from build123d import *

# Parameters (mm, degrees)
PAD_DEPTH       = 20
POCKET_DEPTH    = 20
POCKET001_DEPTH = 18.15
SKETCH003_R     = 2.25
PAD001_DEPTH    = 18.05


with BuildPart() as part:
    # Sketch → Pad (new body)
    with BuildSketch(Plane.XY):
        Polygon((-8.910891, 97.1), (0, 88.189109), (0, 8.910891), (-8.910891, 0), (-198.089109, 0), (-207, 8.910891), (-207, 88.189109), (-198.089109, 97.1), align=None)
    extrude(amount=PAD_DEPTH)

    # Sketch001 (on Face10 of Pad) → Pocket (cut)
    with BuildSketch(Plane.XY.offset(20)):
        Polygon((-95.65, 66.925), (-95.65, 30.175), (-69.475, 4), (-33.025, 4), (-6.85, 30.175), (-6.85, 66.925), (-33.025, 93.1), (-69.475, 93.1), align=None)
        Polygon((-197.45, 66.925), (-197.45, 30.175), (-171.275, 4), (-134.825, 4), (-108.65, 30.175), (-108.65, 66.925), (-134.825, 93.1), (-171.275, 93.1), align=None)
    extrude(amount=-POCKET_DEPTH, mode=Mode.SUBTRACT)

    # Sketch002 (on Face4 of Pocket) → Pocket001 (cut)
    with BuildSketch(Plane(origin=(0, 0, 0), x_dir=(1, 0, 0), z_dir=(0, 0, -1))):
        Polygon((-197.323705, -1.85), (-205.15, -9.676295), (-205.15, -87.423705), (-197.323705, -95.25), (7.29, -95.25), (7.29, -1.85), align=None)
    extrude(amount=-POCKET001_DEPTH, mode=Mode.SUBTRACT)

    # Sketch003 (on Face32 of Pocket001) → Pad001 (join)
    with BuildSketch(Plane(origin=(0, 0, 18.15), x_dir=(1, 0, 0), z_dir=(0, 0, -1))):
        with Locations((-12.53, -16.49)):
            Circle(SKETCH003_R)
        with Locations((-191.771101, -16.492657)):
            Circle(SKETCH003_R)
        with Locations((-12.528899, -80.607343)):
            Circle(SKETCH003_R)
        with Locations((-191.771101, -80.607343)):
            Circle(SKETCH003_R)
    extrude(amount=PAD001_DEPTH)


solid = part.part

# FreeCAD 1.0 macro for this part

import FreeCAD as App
import Part
import Sketcher

V = App.Vector
Q = App.Units.Quantity


def add_polygon(sketch, points):
    """Adds a closed chain of lines whose ends are joined by coincident constraints."""
    first, n = sketch.GeometryCount, len(points)
    for a, b in zip(points, points[1:] + points[:1]):
        sketch.addGeometry(Part.LineSegment(App.Vector(*a, 0), App.Vector(*b, 0)), False)
    for i in range(n):
        sketch.addConstraint(Sketcher.Constraint("Coincident", first + i, 2, first + (i + 1) % n, 1))

doc = App.newDocument("Part")
body = doc.addObject("PartDesign::Body", "Body")

# Sketch on XY plane
sketch1 = doc.addObject("Sketcher::SketchObject", "Sketch")
body.addObject(sketch1)
sketch1.AttachmentSupport = (doc.XY_Plane, [""])
sketch1.MapMode = "FlatFace"
add_polygon(sketch1, [(0, 88), (-9, 97), (-198, 97), (-207, 88), (-207, 9), (-198, 0), (-9, 0), (0, 9)])  # lines 0-7
sketch1.addConstraint([
    Sketcher.Constraint("Horizontal", 1),
    Sketcher.Constraint("Vertical", 3),
    Sketcher.Constraint("Horizontal", 5),
    Sketcher.Constraint("Vertical", 7),
    Sketcher.Constraint("PointOnObject", 4, 2, -1),
    Sketcher.Constraint("PointOnObject", 6, 2, -2),
    Sketcher.Constraint("Perpendicular", 0, 2),
    Sketcher.Constraint("Perpendicular", 2, 4),
    Sketcher.Constraint("Perpendicular", 4, 6),
    Sketcher.Constraint("Horizontal", 3, 2, 6, 2),
    Sketcher.Constraint("Horizontal", 2, 2, 7, 2),
    Sketcher.Constraint("Vertical", 1, 2, 4, 2),
    Sketcher.Constraint("Vertical", 0, 2, 5, 2),
    Sketcher.Constraint("DistanceX", 2, 2, -1, 1, Q("207 mm")),
    Sketcher.Constraint("DistanceY", -1, 1, 0, 2, Q("97.1 mm")),
    Sketcher.Constraint("DistanceX", 1, 2, 1, 1, Q("189.178218 mm")),
])
pad1 = doc.addObject("PartDesign::Pad", "Pad")
body.addObject(pad1)
pad1.Profile = sketch1
pad1.Length = 20

# Sketch on XY plane
sketch2 = doc.addObject("Sketcher::SketchObject", "Sketch001")
body.addObject(sketch2)
sketch2.AttachmentSupport = (doc.XY_Plane, [""])
sketch2.MapMode = "FlatFace"
sketch2.AttachmentOffset = App.Placement(V(0, 0, 20), App.Rotation())
add_polygon(sketch2, [(-96, 67), (-96, 30), (-69, 4), (-33, 4), (-7, 30), (-7, 67), (-33, 93), (-69, 93)])  # lines 0-7
add_polygon(sketch2, [(-197, 67), (-197, 30), (-171, 4), (-135, 4), (-109, 30), (-109, 67), (-135, 93), (-171, 93)])  # lines 8-15
sketch2.addConstraint([
    Sketcher.Constraint("Vertical", 0),
    Sketcher.Constraint("Horizontal", 2),
    Sketcher.Constraint("Vertical", 4),
    Sketcher.Constraint("Horizontal", 6),
    Sketcher.Constraint("Vertical", 8),
    Sketcher.Constraint("Horizontal", 10),
    Sketcher.Constraint("Vertical", 12),
    Sketcher.Constraint("Horizontal", 14),
    Sketcher.Constraint("Perpendicular", 1, 3),
    Sketcher.Constraint("Perpendicular", 3, 5),
    Sketcher.Constraint("Perpendicular", 5, 7),
    Sketcher.Constraint("Perpendicular", 7, 9),
    Sketcher.Constraint("Perpendicular", 9, 11),
    Sketcher.Constraint("Perpendicular", 11, 13),
    Sketcher.Constraint("Perpendicular", 13, 15),
    Sketcher.Constraint("Horizontal", 0, 2, 3, 2),
    Sketcher.Constraint("Horizontal", 4, 2, 7, 2),
    Sketcher.Constraint("Horizontal", 3, 2, 8, 2),
    Sketcher.Constraint("Horizontal", 2, 2, 9, 2),
    Sketcher.Constraint("Horizontal", 8, 2, 11, 2),
    Sketcher.Constraint("Horizontal", 7, 2, 12, 2),
    Sketcher.Constraint("Horizontal", 6, 2, 13, 2),
    Sketcher.Constraint("Horizontal", 12, 2, 15, 2),
    Sketcher.Constraint("Vertical", 2, 2, 5, 2),
    Sketcher.Constraint("Vertical", 1, 2, 6, 2),
    Sketcher.Constraint("Equal", 6, 10),
    Sketcher.Constraint("DistanceY", -1, 1, 1, 2, Q("4 mm")),
    Sketcher.Constraint("DistanceX", 11, 2, 0, 2, Q("13 mm")),
    Sketcher.Constraint("DistanceX", 2, 1, 2, 2, Q("36.45 mm")),
    Sketcher.Constraint("DistanceY", 0, 2, 0, 1, Q("36.75 mm")),
    Sketcher.Constraint("DistanceY", -1, 1, 5, 2, Q("93.1 mm")),
    Sketcher.Constraint("DistanceX", 0, 2, -1, 1, Q("95.65 mm")),
])
pocket1 = doc.addObject("PartDesign::Pocket", "Pocket")
body.addObject(pocket1)
pocket1.Profile = sketch2
pocket1.Length = 20

# Sketch on XY plane
sketch3 = doc.addObject("Sketcher::SketchObject", "Sketch002")
body.addObject(sketch3)
sketch3.AttachmentSupport = (doc.XY_Plane, [""])
sketch3.MapMode = "FlatFace"
add_polygon(sketch3, [(-197, 2), (-205, 10), (-205, 87), (-197, 95), (7, 95), (7, 2)])  # lines 0-5
sketch3.addConstraint([
    Sketcher.Constraint("Vertical", 1),
    Sketcher.Constraint("Horizontal", 3),
    Sketcher.Constraint("Vertical", 4),
    Sketcher.Constraint("Horizontal", 5),
    Sketcher.Constraint("Perpendicular", 0, 2),
    Sketcher.Constraint("Vertical", 2, 2, 5, 2),
    Sketcher.Constraint("Equal", 0, 2),
    Sketcher.Constraint("DistanceY", 4, 2, 4, 1, Q("93.4 mm")),
    Sketcher.Constraint("DistanceX", 0, 2, -1, 1, Q("205.15 mm")),
    Sketcher.Constraint("DistanceY", -1, 1, 2, 2, Q("95.25 mm")),
    Sketcher.Constraint("DistanceX", -1, 1, 3, 2, Q("7.29 mm")),
    Sketcher.Constraint("DistanceY", 1, 1, 1, 2, Q("77.74741 mm")),
])
pocket2 = doc.addObject("PartDesign::Pocket", "Pocket001")
body.addObject(pocket2)
pocket2.Profile = sketch3
pocket2.Length = 18.15
pocket2.Reversed = True

# Sketch on XY plane
sketch4 = doc.addObject("Sketcher::SketchObject", "Sketch003")
body.addObject(sketch4)
sketch4.AttachmentSupport = (doc.XY_Plane, [""])
sketch4.MapMode = "FlatFace"
sketch4.AttachmentOffset = App.Placement(V(0, 0, 18.15), App.Rotation())
sketch4.addGeometry([
    Part.Circle(V(-12.5, 16.5, 0), V(0, 0, 1), 2.2),
    Part.Circle(V(-191.8, 16.5, 0), V(0, 0, 1), 2.2),
    Part.Circle(V(-12.5, 80.6, 0), V(0, 0, 1), 2.2),
    Part.Circle(V(-191.8, 80.6, 0), V(0, 0, 1), 2.2),
], False)
sketch4.addConstraint([
    Sketcher.Constraint("Equal", 0, 1),
    Sketcher.Constraint("Equal", 1, 2),
    Sketcher.Constraint("Equal", 2, 3),
    Sketcher.Constraint("Horizontal", 2, 3, 3, 3),
    Sketcher.Constraint("Vertical", 1, 3, 3, 3),
    Sketcher.Constraint("Diameter", 0, Q("4.5 mm")),
    Sketcher.Constraint("DistanceX", 0, 3, -1, 1, Q("12.53 mm")),
    Sketcher.Constraint("DistanceY", -1, 1, 0, 3, Q("16.49 mm")),
    Sketcher.Constraint("DistanceX", 1, 3, -1, 1, Q("191.771101 mm")),
    Sketcher.Constraint("DistanceX", 2, 3, -1, 1, Q("12.528899 mm")),
    Sketcher.Constraint("DistanceY", -1, 1, 1, 3, Q("16.492657 mm")),
    Sketcher.Constraint("DistanceY", -1, 1, 2, 3, Q("80.607343 mm")),
])
pad2 = doc.addObject("PartDesign::Pad", "Pad001")
body.addObject(pad2)
pad2.Profile = sketch4
pad2.Length = 18.05
pad2.Reversed = True

doc.recompute()
